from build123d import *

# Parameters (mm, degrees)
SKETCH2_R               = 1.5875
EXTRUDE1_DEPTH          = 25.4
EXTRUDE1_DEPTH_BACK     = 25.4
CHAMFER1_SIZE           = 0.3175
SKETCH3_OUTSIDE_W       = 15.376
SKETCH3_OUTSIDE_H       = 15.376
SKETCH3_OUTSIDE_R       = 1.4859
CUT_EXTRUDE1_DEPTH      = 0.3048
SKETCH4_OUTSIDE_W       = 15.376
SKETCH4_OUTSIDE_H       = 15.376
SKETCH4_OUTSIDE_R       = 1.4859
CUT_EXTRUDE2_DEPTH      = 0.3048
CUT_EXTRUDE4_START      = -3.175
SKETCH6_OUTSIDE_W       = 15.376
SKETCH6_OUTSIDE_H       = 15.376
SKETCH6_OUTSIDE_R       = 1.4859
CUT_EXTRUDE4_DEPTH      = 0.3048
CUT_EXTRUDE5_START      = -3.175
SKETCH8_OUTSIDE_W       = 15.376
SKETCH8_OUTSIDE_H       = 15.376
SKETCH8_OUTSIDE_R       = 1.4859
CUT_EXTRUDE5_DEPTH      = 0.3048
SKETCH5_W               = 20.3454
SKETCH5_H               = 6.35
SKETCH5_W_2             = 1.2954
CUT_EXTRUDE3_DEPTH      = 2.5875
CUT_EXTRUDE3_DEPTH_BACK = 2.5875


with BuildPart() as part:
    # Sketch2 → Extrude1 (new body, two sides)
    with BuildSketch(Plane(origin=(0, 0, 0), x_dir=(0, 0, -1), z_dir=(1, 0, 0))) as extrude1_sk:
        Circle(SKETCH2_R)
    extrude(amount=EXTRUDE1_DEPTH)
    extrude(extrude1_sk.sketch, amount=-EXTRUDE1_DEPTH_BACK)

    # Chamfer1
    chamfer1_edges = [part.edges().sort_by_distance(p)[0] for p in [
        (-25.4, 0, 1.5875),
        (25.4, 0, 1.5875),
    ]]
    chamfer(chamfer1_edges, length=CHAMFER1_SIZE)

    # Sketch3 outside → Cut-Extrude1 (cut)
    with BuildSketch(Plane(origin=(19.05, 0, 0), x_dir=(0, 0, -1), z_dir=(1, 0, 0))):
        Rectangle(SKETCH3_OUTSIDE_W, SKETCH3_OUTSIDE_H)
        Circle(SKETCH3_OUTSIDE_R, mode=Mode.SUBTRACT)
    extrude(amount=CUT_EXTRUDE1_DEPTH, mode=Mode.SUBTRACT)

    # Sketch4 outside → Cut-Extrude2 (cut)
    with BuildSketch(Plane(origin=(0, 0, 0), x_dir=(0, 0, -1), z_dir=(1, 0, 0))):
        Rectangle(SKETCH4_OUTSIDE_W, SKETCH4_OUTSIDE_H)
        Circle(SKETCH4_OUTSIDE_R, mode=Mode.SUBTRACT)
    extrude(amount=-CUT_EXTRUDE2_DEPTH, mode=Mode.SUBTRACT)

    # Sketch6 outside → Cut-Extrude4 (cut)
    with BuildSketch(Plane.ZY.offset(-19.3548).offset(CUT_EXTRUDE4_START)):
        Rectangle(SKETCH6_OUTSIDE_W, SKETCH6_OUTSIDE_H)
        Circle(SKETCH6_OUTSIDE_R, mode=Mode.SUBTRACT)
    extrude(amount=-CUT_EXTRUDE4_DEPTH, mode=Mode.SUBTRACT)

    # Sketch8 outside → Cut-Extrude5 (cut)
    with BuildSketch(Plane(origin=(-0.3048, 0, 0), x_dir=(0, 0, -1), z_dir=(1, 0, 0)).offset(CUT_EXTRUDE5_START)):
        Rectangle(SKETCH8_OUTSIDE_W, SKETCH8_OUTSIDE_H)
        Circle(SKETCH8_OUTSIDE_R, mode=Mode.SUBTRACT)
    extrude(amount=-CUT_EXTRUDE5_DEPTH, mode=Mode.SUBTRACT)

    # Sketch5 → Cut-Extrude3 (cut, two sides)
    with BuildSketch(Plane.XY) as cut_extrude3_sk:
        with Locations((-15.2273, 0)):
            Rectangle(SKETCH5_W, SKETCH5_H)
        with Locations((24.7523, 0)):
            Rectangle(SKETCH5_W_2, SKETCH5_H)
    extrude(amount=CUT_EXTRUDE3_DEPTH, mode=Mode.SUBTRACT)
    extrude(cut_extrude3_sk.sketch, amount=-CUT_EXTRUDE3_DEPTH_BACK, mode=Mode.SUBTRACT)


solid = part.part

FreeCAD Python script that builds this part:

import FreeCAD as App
import Part
import Sketcher
Q = App.Units.Quantity


def edges_at(feature, points):
    """Names of the edges that pass closest to the given points."""
    edges = feature.Shape.Edges
    near = lambda p: min(range(len(edges)), key=lambda i: edges[i].distToShape(Part.Vertex(*p))[0])
    return sorted({f"Edge{near(p) + 1}" for p in points})


def add_polygon(sketch, points):
    """Adds a closed chain of lines whose ends are joined by coincident constraints."""
    first, n = sketch.GeometryCount, len(points)
    for a, b in zip(points, points[1:] + points[:1]):
        sketch.addGeometry(Part.LineSegment(App.Vector(*a, 0), App.Vector(*b, 0)), False)
    for i in range(n):
        sketch.addConstraint(Sketcher.Constraint("Coincident", first + i, 2, first + (i + 1) % n, 1))

doc = App.newDocument("Part")
body = doc.addObject("PartDesign::Body", "Body")

# Sketch on YZ plane
sketch1 = doc.addObject("Sketcher::SketchObject", "Sketch")
body.addObject(sketch1)
sketch1.AttachmentSupport = (doc.YZ_Plane, [""])
sketch1.MapMode = "FlatFace"
sketch1.addGeometry(Part.Circle(App.Vector(0, 0, 0), App.Vector(0, 0, 1), 1.5875), False)
sketch1.addConstraint(Sketcher.Constraint("Coincident", 0, 3, -1, 1))
sketch1.addConstraint(Sketcher.Constraint("Diameter", 0, Q("0.125 in")))
pad1 = doc.addObject("PartDesign::Pad", "Pad")
body.addObject(pad1)
pad1.Profile = sketch1
pad1.Type = "TwoLengths"
pad1.Length = Q("1 in")
pad1.Length2 = Q("1 in")
doc.recompute()

chamfer = doc.addObject("PartDesign::Chamfer", "Chamfer")
body.addObject(chamfer)
chamfer.Base = (pad1, edges_at(pad1, [(-25.4, 0, 1.587), (25.4, 0, 1.587)]))
chamfer.Size = Q("0.0125 in")

# Sketch on YZ plane
sketch2 = doc.addObject("Sketcher::SketchObject", "Sketch001")
body.addObject(sketch2)
sketch2.AttachmentSupport = (doc.YZ_Plane, [""])
sketch2.MapMode = "FlatFace"
sketch2.AttachmentOffset = App.Placement(App.Vector(0, 0, 0.75 * 25.4), App.Rotation())
add_polygon(sketch2, [(7.688, 7.688), (-7.688, 7.688), (-7.688, -7.688), (7.688, -7.688)])  # lines 0-3
sketch2.addGeometry(Part.Circle(App.Vector(0, 0, 0), App.Vector(0, 0, 1), 1.4859), False)  # 4
sketch2.addConstraint(Sketcher.Constraint("Horizontal", 0))
sketch2.addConstraint(Sketcher.Constraint("Vertical", 1))
sketch2.addConstraint(Sketcher.Constraint("Horizontal", 2))
sketch2.addConstraint(Sketcher.Constraint("Vertical", 3))
sketch2.addConstraint(Sketcher.Constraint("Coincident", 4, 3, -1, 1))
sketch2.addConstraint(Sketcher.Constraint("Symmetric", 0, 2, 2, 2, -1, 1))
sketch2.addConstraint(Sketcher.Constraint("Equal", 2, 1))
sketch2.addConstraint(Sketcher.Constraint("Diameter", 4, Q("0.117 in")))
sketch2.addConstraint(Sketcher.Constraint("DistanceX", 0, 2, 0, 1, 15.376))
pocket1 = doc.addObject("PartDesign::Pocket", "Pocket")
body.addObject(pocket1)
pocket1.Profile = sketch2
pocket1.Length = Q("0.012 in")
pocket1.Reversed = True

# Sketch on YZ plane
sketch3 = doc.addObject("Sketcher::SketchObject", "Sketch002")
body.addObject(sketch3)
sketch3.AttachmentSupport = (doc.YZ_Plane, [""])
sketch3.MapMode = "FlatFace"
add_polygon(sketch3, [(7.688, 7.688), (-7.688, 7.688), (-7.688, -7.688), (7.688, -7.688)])  # lines 0-3
sketch3.addGeometry(Part.Circle(App.Vector(0, 0, 0), App.Vector(0, 0, 1), 1.4859), False)  # 4
sketch3.addConstraint(Sketcher.Constraint("Horizontal", 0))
sketch3.addConstraint(Sketcher.Constraint("Vertical", 1))
sketch3.addConstraint(Sketcher.Constraint("Horizontal", 2))
sketch3.addConstraint(Sketcher.Constraint("Vertical", 3))
sketch3.addConstraint(Sketcher.Constraint("Coincident", 4, 3, -1, 1))
sketch3.addConstraint(Sketcher.Constraint("Symmetric", 0, 2, 2, 2, -1, 1))
sketch3.addConstraint(Sketcher.Constraint("Equal", 2, 1))
sketch3.addConstraint(Sketcher.Constraint("Diameter", 4, Q("0.117 in")))
sketch3.addConstraint(Sketcher.Constraint("DistanceX", 0, 2, 0, 1, 15.376))
pocket2 = doc.addObject("PartDesign::Pocket", "Pocket001")
body.addObject(pocket2)
pocket2.Profile = sketch3
pocket2.Length = Q("0.012 in")

# Sketch on YZ plane
sketch4 = doc.addObject("Sketcher::SketchObject", "Sketch003")
body.addObject(sketch4)
sketch4.AttachmentSupport = (doc.YZ_Plane, [""])
sketch4.MapMode = "FlatFace"
sketch4.AttachmentOffset = App.Placement(App.Vector(0, 0, 0.887 * 25.4), App.Rotation())
add_polygon(sketch4, [(7.688, -7.688), (-7.688, -7.688), (-7.688, 7.688), (7.688, 7.688)])  # lines 0-3
sketch4.addGeometry(Part.Circle(App.Vector(0, 0, 0), App.Vector(0, 0, 1), 1.4859), False)  # 4
sketch4.addConstraint(Sketcher.Constraint("Horizontal", 0))
sketch4.addConstraint(Sketcher.Constraint("Vertical", 1))
sketch4.addConstraint(Sketcher.Constraint("Horizontal", 2))
sketch4.addConstraint(Sketcher.Constraint("Vertical", 3))
sketch4.addConstraint(Sketcher.Constraint("Coincident", 4, 3, -1, 1))
sketch4.addConstraint(Sketcher.Constraint("Symmetric", 0, 2, 2, 2, -1, 1))
sketch4.addConstraint(Sketcher.Constraint("Equal", 2, 1))
sketch4.addConstraint(Sketcher.Constraint("Diameter", 4, Q("0.117 in")))
sketch4.addConstraint(Sketcher.Constraint("DistanceX", 0, 2, 0, 1, 15.376))
pocket3 = doc.addObject("PartDesign::Pocket", "Pocket002")
body.addObject(pocket3)
pocket3.Profile = sketch4
pocket3.Length = Q("0.012 in")
pocket3.Reversed = True

# Sketch on YZ plane
sketch5 = doc.addObject("Sketcher::SketchObject", "Sketch004")
body.addObject(sketch5)
sketch5.AttachmentSupport = (doc.YZ_Plane, [""])
sketch5.MapMode = "FlatFace"
sketch5.AttachmentOffset = App.Placement(App.Vector(0, 0, -0.137 * 25.4), App.Rotation())
add_polygon(sketch5, [(7.688, 7.688), (-7.688, 7.688), (-7.688, -7.688), (7.688, -7.688)])  # lines 0-3
sketch5.addGeometry(Part.Circle(App.Vector(0, 0, 0), App.Vector(0, 0, 1), 1.4859), False)  # 4
sketch5.addConstraint(Sketcher.Constraint("Horizontal", 0))
sketch5.addConstraint(Sketcher.Constraint("Vertical", 1))
sketch5.addConstraint(Sketcher.Constraint("Horizontal", 2))
sketch5.addConstraint(Sketcher.Constraint("Vertical", 3))
sketch5.addConstraint(Sketcher.Constraint("Coincident", 4, 3, -1, 1))
sketch5.addConstraint(Sketcher.Constraint("Symmetric", 0, 2, 2, 2, -1, 1))
sketch5.addConstraint(Sketcher.Constraint("Equal", 2, 1))
sketch5.addConstraint(Sketcher.Constraint("Diameter", 4, Q("0.117 in")))
sketch5.addConstraint(Sketcher.Constraint("DistanceX", 0, 2, 0, 1, 15.376))
pocket4 = doc.addObject("PartDesign::Pocket", "Pocket003")
body.addObject(pocket4)
pocket4.Profile = sketch5
pocket4.Length = Q("0.012 in")

# Sketch on XY plane
sketch6 = doc.addObject("Sketcher::SketchObject", "Sketch005")
body.addObject(sketch6)
sketch6.AttachmentSupport = (doc.XY_Plane, [""])
sketch6.MapMode = "FlatFace"
add_polygon(sketch6, [(-25.4, 3.175), (-25.4, -3.175), (-5.0546, -3.175), (-5.0546, 3.175)])  # lines 0-3
add_polygon(sketch6, [(24.1046, 3.175), (24.1046, -3.175), (25.4, -3.175), (25.4, 3.175)])  # lines 4-7
sketch6.addConstraint(Sketcher.Constraint("Vertical", 0))
sketch6.addConstraint(Sketcher.Constraint("Horizontal", 1))
sketch6.addConstraint(Sketcher.Constraint("Vertical", 2))
sketch6.addConstraint(Sketcher.Constraint("Horizontal", 3))
sketch6.addConstraint(Sketcher.Constraint("Vertical", 4))
sketch6.addConstraint(Sketcher.Constraint("Horizontal", 5))
sketch6.addConstraint(Sketcher.Constraint("Vertical", 6))
sketch6.addConstraint(Sketcher.Constraint("Horizontal", 7))
sketch6.addConstraint(Sketcher.Constraint("Symmetric", 3, 2, 5, 2, -1, 1))
sketch6.addConstraint(Sketcher.Constraint("Horizontal", 1, 2, 4, 2))
sketch6.addConstraint(Sketcher.Constraint("Horizontal", 3, 2, 6, 2))
sketch6.addConstraint(Sketcher.Constraint("DistanceX", 0, 2, -1, 1, Q("1 in")))
sketch6.addConstraint(Sketcher.Constraint("DistanceY", 0, 2, 0, 1, Q("0.25 in")))
sketch6.addConstraint(Sketcher.Constraint("DistanceX", 1, 1, 1, 2, Q("0.801 in")))
sketch6.addConstraint(Sketcher.Constraint("DistanceX", 5, 1, 5, 2, Q("0.051 in")))
pocket5 = doc.addObject("PartDesign::Pocket", "Pocket004")
body.addObject(pocket5)
pocket5.Profile = sketch6
pocket5.Type = "ThroughAll"
pocket5.Midplane = True

doc.recompute()
